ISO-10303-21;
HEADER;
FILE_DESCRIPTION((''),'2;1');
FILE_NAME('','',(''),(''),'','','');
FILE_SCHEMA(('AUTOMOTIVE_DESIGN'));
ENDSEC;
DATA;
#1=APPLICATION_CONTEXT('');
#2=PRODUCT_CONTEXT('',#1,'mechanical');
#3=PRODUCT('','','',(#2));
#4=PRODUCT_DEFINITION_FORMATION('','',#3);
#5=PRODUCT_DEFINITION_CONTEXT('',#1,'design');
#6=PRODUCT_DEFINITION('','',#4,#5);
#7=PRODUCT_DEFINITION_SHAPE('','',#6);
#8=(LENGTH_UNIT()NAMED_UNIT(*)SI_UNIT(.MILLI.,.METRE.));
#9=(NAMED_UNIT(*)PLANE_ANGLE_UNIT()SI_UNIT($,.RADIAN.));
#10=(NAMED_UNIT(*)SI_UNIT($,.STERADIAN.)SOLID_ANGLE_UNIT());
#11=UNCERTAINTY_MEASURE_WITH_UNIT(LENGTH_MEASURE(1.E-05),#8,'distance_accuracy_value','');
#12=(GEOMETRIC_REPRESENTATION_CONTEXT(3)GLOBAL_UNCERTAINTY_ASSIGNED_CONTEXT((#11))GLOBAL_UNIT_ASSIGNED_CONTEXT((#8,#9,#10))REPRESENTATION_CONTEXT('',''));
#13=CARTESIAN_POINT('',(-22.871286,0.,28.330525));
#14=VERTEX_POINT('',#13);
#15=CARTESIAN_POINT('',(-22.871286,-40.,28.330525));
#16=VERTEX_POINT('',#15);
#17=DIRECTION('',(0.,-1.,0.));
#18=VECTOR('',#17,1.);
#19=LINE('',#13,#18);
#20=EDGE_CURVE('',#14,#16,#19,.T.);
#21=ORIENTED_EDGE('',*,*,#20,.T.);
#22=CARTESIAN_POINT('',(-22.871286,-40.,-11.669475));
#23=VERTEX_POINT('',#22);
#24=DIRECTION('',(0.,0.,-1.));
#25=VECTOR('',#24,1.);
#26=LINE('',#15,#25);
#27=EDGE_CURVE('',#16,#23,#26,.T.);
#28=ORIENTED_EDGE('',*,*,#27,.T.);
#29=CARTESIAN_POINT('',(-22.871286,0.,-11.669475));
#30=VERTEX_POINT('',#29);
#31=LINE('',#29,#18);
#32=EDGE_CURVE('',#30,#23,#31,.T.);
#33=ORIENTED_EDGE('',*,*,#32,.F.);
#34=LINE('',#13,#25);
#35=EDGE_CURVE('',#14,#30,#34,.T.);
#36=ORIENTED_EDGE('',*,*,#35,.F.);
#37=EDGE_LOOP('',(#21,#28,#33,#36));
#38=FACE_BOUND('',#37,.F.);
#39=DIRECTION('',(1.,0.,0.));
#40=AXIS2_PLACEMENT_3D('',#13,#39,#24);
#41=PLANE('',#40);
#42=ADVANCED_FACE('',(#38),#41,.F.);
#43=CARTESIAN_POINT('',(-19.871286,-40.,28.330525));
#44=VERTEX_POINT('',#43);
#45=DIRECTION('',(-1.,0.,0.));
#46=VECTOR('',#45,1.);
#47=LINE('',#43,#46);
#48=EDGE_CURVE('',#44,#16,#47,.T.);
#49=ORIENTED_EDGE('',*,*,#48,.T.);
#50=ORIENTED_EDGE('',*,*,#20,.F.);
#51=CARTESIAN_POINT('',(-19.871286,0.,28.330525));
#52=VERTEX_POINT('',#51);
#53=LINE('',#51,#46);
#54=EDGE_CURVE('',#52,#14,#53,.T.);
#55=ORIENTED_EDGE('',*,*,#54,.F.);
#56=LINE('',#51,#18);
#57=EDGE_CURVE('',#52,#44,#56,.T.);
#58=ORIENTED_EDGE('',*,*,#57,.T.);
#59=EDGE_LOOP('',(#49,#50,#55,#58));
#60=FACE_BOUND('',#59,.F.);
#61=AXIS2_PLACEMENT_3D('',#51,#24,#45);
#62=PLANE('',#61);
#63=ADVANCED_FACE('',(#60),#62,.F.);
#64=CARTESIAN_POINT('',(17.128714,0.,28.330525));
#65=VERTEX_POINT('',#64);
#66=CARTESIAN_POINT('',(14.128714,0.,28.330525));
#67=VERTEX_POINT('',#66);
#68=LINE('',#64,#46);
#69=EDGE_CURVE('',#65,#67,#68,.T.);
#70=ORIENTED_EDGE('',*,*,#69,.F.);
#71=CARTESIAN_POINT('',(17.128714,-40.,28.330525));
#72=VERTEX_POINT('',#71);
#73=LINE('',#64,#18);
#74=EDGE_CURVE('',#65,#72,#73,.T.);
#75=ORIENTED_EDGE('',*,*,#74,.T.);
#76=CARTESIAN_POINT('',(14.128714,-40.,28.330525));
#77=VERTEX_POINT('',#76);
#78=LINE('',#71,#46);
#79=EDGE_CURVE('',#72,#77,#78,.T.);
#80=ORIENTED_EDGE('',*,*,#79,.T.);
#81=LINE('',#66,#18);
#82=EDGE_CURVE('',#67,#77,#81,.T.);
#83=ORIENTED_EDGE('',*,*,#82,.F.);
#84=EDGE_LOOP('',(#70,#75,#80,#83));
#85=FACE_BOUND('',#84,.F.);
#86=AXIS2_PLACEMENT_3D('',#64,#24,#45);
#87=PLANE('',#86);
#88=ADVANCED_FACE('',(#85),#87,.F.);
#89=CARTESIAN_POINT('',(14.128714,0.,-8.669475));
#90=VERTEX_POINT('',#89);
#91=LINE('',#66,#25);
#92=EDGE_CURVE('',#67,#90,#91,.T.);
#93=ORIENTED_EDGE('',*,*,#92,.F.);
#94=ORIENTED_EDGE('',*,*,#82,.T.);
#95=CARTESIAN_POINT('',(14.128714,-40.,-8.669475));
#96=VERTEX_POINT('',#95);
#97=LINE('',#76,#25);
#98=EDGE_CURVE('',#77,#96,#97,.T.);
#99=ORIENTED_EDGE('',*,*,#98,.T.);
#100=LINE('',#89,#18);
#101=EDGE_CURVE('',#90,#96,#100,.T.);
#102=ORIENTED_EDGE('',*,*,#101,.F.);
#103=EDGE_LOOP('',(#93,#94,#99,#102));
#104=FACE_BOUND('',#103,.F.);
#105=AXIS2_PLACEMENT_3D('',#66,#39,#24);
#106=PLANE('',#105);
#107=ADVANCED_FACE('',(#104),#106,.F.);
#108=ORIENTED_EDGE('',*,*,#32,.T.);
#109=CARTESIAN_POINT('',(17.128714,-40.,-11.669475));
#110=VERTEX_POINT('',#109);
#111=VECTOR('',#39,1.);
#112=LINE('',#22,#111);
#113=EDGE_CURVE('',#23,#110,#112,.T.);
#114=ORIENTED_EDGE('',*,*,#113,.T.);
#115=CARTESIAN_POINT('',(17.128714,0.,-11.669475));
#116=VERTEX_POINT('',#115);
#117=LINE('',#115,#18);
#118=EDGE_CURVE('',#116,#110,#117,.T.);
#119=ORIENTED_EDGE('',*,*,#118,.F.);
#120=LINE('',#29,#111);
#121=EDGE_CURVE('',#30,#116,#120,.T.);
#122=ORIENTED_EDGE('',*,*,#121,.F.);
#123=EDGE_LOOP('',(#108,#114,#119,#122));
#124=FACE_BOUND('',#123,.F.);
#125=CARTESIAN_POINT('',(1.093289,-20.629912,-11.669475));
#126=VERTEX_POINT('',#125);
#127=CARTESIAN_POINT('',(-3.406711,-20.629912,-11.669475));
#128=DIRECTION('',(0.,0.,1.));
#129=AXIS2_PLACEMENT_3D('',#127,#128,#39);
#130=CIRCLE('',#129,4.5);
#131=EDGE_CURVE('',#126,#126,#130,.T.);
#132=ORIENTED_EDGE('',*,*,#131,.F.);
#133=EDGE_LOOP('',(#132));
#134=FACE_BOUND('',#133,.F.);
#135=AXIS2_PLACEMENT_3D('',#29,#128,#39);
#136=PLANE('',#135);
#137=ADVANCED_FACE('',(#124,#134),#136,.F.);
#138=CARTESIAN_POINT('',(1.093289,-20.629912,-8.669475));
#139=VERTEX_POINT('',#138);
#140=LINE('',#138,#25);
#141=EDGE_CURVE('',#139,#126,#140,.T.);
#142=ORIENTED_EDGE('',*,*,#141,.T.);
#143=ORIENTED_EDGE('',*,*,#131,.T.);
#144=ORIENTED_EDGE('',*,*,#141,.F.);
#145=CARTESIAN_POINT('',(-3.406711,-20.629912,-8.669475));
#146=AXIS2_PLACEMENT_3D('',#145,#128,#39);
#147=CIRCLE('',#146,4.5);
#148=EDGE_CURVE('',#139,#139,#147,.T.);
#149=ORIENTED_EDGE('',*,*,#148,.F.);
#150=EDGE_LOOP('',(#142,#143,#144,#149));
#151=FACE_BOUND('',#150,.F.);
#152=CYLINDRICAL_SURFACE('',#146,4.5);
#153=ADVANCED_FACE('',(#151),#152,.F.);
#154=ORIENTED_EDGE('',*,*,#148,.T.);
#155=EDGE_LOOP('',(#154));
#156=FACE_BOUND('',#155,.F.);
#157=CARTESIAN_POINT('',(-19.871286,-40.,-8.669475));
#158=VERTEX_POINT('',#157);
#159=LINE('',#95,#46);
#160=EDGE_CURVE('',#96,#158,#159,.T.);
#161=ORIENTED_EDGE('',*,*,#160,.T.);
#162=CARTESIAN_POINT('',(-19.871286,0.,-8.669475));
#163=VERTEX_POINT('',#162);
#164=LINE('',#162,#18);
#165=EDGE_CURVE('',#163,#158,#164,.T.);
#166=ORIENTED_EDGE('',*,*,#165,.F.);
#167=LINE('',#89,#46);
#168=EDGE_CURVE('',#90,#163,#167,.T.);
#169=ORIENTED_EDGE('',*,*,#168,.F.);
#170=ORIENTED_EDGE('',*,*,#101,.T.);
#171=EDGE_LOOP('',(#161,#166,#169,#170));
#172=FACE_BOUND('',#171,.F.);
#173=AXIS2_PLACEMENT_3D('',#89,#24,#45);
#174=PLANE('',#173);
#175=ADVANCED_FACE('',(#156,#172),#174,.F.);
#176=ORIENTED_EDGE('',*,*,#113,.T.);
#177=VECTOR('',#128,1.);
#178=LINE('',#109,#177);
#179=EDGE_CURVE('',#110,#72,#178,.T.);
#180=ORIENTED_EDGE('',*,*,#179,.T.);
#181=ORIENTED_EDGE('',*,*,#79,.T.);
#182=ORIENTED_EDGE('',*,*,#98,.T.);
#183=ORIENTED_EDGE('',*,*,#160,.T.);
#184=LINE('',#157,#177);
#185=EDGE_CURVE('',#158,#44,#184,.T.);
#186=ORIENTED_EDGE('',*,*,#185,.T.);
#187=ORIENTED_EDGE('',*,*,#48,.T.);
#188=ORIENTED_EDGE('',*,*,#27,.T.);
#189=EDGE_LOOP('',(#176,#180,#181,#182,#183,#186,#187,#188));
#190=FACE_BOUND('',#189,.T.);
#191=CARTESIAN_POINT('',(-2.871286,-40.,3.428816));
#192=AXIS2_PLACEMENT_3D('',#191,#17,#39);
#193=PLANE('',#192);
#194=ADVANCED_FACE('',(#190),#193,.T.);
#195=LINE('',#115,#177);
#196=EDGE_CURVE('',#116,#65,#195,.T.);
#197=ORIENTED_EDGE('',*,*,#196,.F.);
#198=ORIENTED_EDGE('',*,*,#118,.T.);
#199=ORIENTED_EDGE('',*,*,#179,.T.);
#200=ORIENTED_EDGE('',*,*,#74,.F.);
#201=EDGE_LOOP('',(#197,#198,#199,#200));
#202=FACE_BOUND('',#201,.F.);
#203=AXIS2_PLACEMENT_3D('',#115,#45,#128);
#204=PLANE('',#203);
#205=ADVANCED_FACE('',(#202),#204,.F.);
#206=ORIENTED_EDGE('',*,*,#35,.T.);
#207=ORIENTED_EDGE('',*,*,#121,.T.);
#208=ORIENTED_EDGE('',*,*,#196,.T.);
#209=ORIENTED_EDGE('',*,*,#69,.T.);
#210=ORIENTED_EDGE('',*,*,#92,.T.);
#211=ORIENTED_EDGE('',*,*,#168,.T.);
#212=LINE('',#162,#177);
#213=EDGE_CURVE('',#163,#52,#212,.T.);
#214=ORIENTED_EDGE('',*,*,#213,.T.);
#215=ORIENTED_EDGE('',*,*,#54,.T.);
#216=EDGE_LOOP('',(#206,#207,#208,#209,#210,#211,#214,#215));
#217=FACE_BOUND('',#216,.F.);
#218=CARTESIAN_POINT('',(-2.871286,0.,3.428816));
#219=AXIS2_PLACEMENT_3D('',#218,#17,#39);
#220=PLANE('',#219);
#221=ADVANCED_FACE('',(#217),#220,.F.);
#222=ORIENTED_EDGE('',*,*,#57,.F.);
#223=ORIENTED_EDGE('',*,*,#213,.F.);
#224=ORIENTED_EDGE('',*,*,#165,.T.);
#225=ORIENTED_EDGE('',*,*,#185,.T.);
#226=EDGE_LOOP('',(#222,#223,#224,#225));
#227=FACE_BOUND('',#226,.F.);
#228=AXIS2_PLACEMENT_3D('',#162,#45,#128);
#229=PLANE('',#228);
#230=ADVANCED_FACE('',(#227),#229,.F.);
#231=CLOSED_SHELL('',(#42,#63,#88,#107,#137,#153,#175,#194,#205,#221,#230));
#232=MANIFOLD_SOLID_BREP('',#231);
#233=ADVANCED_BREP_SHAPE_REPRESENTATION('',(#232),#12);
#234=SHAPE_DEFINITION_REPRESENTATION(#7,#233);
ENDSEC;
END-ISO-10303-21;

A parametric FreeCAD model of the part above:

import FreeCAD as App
import Part
import Sketcher
from FreeCAD import Vector
Q = App.Units.Quantity

doc = App.newDocument("Part")
body = doc.addObject("PartDesign::Body", "Body")

# Sketch on XZ plane
sketch1 = body.newObject("Sketcher::SketchObject", "Sketch")
sketch1.AttachmentSupport = (doc.getObject("XZ_Plane"), [""])
sketch1.MapMode = "FlatFace"
sketch1.addGeometry([
    Part.LineSegment(Vector(-22.9, 28.3, 0), Vector(-22.9, -11.7, 0)),  # 0
    Part.LineSegment(Vector(-22.9, -11.7, 0), Vector(17.1, -11.7, 0)),  # 1
    Part.LineSegment(Vector(17.1, -11.7, 0), Vector(17.1, 28.3, 0)),  # 2
    Part.LineSegment(Vector(17.1, 28.3, 0), Vector(14.1, 28.3, 0)),  # 3
    Part.LineSegment(Vector(14.1, 28.3, 0), Vector(14.1, -8.7, 0)),  # 4
    Part.LineSegment(Vector(14.1, -8.7, 0), Vector(-19.9, -8.7, 0)),  # 5
    Part.LineSegment(Vector(-19.9, -8.7, 0), Vector(-19.9, 28.3, 0)),  # 6
    Part.LineSegment(Vector(-19.9, 28.3, 0), Vector(-22.9, 28.3, 0)),  # 7
], False)
sketch1.addConstraint([
    Sketcher.Constraint("Coincident", 0, 2, 1, 1),
    Sketcher.Constraint("Coincident", 1, 2, 2, 1),
    Sketcher.Constraint("Coincident", 2, 2, 3, 1),
    Sketcher.Constraint("Coincident", 3, 2, 4, 1),
    Sketcher.Constraint("Coincident", 4, 2, 5, 1),
    Sketcher.Constraint("Coincident", 5, 2, 6, 1),
    Sketcher.Constraint("Coincident", 6, 2, 7, 1),
    Sketcher.Constraint("Coincident", 7, 2, 0, 1),
    Sketcher.Constraint("Vertical", 0),
    Sketcher.Constraint("Horizontal", 1),
    Sketcher.Constraint("Vertical", 2),
    Sketcher.Constraint("Horizontal", 3),
    Sketcher.Constraint("Vertical", 4),
    Sketcher.Constraint("Horizontal", 5),
    Sketcher.Constraint("Vertical", 6),
    Sketcher.Constraint("Horizontal", 7),
    Sketcher.Constraint("Horizontal", 3, 2, 6, 2),
    Sketcher.Constraint("Equal", 3, 7),
    Sketcher.Constraint("Equal", 1, 0),
    Sketcher.Constraint("DistanceX", 1, 1, 1, 2, Q("40 mm")),
    Sketcher.Constraint("DistanceX", 3, 2, 3, 1, Q("3 mm")),
    Sketcher.Constraint("DistanceY", 4, 2, 4, 1, Q("37 mm")),
    Sketcher.Constraint("DistanceX", 0, 2, -1, 1, Q("22.871286 mm")),
    Sketcher.Constraint("DistanceY", 0, 2, -1, 1, Q("11.669475 mm")),
])
pad1 = body.newObject("PartDesign::Pad", "Pad")
pad1.Profile = sketch1
pad1.Length = 40

# Sketch on XY plane
sketch2 = body.newObject("Sketcher::SketchObject", "Sketch001")
sketch2.AttachmentSupport = (doc.getObject("XY_Plane"), [""])
sketch2.MapMode = "FlatFace"
sketch2.AttachmentOffset = App.Placement(Vector(0, 0, -8.669475), App.Rotation())
sketch2.addGeometry(Part.Circle(Vector(-3.4, -20.6, 0), Vector(0, 0, 1), 4.5), False)
sketch2.addConstraint([
    Sketcher.Constraint("Diameter", 0, Q("9 mm")),
    Sketcher.Constraint("DistanceX", 0, 3, -1, 1, Q("3.406711 mm")),
    Sketcher.Constraint("DistanceY", 0, 3, -1, 1, Q("20.629912 mm")),
])
pocket1 = body.newObject("PartDesign::Pocket", "Pocket")
pocket1.Profile = sketch2
pocket1.Length = 25

doc.recompute()
